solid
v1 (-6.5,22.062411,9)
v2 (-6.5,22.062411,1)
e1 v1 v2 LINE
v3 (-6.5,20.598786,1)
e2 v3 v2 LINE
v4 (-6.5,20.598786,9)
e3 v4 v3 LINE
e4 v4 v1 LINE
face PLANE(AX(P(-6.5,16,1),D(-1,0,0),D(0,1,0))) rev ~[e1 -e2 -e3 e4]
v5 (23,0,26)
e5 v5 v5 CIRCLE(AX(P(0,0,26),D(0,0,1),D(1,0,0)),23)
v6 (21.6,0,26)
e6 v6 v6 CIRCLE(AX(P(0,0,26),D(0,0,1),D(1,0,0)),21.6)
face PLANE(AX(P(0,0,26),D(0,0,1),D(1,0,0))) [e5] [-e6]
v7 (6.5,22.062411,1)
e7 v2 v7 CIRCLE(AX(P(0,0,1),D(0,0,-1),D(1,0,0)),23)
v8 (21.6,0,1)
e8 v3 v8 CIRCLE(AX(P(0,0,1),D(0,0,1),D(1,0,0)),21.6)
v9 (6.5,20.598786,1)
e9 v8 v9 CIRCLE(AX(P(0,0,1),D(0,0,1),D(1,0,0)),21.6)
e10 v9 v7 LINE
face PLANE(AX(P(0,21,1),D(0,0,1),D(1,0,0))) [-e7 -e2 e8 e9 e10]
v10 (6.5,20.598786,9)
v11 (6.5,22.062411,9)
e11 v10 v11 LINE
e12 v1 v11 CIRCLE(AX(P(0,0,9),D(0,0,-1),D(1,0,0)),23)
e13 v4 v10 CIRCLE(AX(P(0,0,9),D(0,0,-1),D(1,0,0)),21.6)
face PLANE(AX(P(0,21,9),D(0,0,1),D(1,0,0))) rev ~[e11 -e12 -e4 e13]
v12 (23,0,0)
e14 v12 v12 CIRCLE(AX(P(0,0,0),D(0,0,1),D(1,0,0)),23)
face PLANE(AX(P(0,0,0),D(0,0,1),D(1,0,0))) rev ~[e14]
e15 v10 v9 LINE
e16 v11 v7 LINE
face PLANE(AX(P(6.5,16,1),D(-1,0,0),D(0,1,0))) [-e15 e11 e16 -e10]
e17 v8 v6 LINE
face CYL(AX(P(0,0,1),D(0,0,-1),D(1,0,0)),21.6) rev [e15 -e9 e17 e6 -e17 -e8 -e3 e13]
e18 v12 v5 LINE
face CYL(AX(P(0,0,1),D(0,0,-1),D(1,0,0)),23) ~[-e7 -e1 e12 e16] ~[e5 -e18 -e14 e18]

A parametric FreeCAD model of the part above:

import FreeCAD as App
import Part
import Sketcher

V = App.Vector
Q = App.Units.Quantity

doc = App.newDocument("Part")
body = doc.addObject("PartDesign::Body", "Body")

# Sketch on XY plane
sketch1 = doc.addObject("Sketcher::SketchObject", "Sketch")
body.addObject(sketch1)
sketch1.AttachmentSupport = (doc.XY_Plane, [""])
sketch1.MapMode = "FlatFace"
sketch1.AttachmentOffset = App.Placement(V(0, 0, 1), App.Rotation())
sketch1.addGeometry(Part.LineSegment(V(-6.5, 26, 0), V(-6.5, 16, 0)), False)
sketch1.addGeometry(Part.LineSegment(V(-6.5, 16, 0), V(6.5, 16, 0)), False)
sketch1.addGeometry(Part.LineSegment(V(6.5, 16, 0), V(6.5, 26, 0)), False)
sketch1.addGeometry(Part.LineSegment(V(6.5, 26, 0), V(-6.5, 26, 0)), False)
sketch1.addConstraint(Sketcher.Constraint("Coincident", 0, 2, 1, 1))
sketch1.addConstraint(Sketcher.Constraint("Coincident", 1, 2, 2, 1))
sketch1.addConstraint(Sketcher.Constraint("Coincident", 2, 2, 3, 1))
sketch1.addConstraint(Sketcher.Constraint("Coincident", 3, 2, 0, 1))
sketch1.addConstraint(Sketcher.Constraint("Vertical", 0))
sketch1.addConstraint(Sketcher.Constraint("Horizontal", 1))
sketch1.addConstraint(Sketcher.Constraint("Vertical", 2))
sketch1.addConstraint(Sketcher.Constraint("Horizontal", 3))
sketch1.addConstraint(Sketcher.Constraint("DistanceX", 1, 1, 1, 2, Q("13 mm")))
sketch1.addConstraint(Sketcher.Constraint("DistanceY", 0, 2, 0, 1, Q("10 mm")))
sketch1.addConstraint(Sketcher.Constraint("DistanceY", -1, 1, 0, 2, Q("16 mm")))
sketch1.addConstraint(Sketcher.Constraint("DistanceX", 0, 2, -1, 1, Q("6.5 mm")))
pad1 = doc.addObject("PartDesign::Pad", "Pad")
body.addObject(pad1)
pad1.Profile = sketch1
pad1.Length = 8
body2 = doc.addObject("PartDesign::Body", "Body001")

# Sketch on XY plane
sketch2 = doc.addObject("Sketcher::SketchObject", "Sketch001")
body2.addObject(sketch2)
sketch2.AttachmentSupport = (doc.getObject("XY_Plane001"), [""])
sketch2.MapMode = "FlatFace"
sketch2.addGeometry(Part.Circle(V(0, 0, 0), V(0, 0, 1), 23), False)
sketch2.addConstraint(Sketcher.Constraint("Coincident", 0, 3, -1, 1))
sketch2.addConstraint(Sketcher.Constraint("Diameter", 0, Q("46 mm")))
pad2 = doc.addObject("PartDesign::Pad", "Pad001")
body2.addObject(pad2)
pad2.Profile = sketch2
pad2.Length = 1

# Sketch on XY plane
sketch3 = doc.addObject("Sketcher::SketchObject", "Sketch002")
body2.addObject(sketch3)
sketch3.AttachmentSupport = (doc.getObject("XY_Plane001"), [""])
sketch3.MapMode = "FlatFace"
sketch3.AttachmentOffset = App.Placement(V(0, 0, 1), App.Rotation())
sketch3.addGeometry(Part.Circle(V(0, 0, 0), V(0, 0, 1), 23), False)
sketch3.addGeometry(Part.Circle(V(0, 0, 0), V(0, 0, 1), 21.6), False)
sketch3.addConstraint(Sketcher.Constraint("Coincident", 0, 3, -1, 1))
sketch3.addConstraint(Sketcher.Constraint("Coincident", 1, 3, -1, 1))
sketch3.addConstraint(Sketcher.Constraint("Diameter", 0, Q("46 mm")))
sketch3.addConstraint(Sketcher.Constraint("Diameter", 1, Q("43.2 mm")))
pad3 = doc.addObject("PartDesign::Pad", "Pad002")
body2.addObject(pad3)
pad3.Profile = sketch3
pad3.Length = 25
doc.recompute()

boolean = doc.addObject("PartDesign::Boolean", "Boolean")
body2.addObject(boolean)
boolean.Type = "Cut"
boolean.addObjects([body])

doc.recompute()
